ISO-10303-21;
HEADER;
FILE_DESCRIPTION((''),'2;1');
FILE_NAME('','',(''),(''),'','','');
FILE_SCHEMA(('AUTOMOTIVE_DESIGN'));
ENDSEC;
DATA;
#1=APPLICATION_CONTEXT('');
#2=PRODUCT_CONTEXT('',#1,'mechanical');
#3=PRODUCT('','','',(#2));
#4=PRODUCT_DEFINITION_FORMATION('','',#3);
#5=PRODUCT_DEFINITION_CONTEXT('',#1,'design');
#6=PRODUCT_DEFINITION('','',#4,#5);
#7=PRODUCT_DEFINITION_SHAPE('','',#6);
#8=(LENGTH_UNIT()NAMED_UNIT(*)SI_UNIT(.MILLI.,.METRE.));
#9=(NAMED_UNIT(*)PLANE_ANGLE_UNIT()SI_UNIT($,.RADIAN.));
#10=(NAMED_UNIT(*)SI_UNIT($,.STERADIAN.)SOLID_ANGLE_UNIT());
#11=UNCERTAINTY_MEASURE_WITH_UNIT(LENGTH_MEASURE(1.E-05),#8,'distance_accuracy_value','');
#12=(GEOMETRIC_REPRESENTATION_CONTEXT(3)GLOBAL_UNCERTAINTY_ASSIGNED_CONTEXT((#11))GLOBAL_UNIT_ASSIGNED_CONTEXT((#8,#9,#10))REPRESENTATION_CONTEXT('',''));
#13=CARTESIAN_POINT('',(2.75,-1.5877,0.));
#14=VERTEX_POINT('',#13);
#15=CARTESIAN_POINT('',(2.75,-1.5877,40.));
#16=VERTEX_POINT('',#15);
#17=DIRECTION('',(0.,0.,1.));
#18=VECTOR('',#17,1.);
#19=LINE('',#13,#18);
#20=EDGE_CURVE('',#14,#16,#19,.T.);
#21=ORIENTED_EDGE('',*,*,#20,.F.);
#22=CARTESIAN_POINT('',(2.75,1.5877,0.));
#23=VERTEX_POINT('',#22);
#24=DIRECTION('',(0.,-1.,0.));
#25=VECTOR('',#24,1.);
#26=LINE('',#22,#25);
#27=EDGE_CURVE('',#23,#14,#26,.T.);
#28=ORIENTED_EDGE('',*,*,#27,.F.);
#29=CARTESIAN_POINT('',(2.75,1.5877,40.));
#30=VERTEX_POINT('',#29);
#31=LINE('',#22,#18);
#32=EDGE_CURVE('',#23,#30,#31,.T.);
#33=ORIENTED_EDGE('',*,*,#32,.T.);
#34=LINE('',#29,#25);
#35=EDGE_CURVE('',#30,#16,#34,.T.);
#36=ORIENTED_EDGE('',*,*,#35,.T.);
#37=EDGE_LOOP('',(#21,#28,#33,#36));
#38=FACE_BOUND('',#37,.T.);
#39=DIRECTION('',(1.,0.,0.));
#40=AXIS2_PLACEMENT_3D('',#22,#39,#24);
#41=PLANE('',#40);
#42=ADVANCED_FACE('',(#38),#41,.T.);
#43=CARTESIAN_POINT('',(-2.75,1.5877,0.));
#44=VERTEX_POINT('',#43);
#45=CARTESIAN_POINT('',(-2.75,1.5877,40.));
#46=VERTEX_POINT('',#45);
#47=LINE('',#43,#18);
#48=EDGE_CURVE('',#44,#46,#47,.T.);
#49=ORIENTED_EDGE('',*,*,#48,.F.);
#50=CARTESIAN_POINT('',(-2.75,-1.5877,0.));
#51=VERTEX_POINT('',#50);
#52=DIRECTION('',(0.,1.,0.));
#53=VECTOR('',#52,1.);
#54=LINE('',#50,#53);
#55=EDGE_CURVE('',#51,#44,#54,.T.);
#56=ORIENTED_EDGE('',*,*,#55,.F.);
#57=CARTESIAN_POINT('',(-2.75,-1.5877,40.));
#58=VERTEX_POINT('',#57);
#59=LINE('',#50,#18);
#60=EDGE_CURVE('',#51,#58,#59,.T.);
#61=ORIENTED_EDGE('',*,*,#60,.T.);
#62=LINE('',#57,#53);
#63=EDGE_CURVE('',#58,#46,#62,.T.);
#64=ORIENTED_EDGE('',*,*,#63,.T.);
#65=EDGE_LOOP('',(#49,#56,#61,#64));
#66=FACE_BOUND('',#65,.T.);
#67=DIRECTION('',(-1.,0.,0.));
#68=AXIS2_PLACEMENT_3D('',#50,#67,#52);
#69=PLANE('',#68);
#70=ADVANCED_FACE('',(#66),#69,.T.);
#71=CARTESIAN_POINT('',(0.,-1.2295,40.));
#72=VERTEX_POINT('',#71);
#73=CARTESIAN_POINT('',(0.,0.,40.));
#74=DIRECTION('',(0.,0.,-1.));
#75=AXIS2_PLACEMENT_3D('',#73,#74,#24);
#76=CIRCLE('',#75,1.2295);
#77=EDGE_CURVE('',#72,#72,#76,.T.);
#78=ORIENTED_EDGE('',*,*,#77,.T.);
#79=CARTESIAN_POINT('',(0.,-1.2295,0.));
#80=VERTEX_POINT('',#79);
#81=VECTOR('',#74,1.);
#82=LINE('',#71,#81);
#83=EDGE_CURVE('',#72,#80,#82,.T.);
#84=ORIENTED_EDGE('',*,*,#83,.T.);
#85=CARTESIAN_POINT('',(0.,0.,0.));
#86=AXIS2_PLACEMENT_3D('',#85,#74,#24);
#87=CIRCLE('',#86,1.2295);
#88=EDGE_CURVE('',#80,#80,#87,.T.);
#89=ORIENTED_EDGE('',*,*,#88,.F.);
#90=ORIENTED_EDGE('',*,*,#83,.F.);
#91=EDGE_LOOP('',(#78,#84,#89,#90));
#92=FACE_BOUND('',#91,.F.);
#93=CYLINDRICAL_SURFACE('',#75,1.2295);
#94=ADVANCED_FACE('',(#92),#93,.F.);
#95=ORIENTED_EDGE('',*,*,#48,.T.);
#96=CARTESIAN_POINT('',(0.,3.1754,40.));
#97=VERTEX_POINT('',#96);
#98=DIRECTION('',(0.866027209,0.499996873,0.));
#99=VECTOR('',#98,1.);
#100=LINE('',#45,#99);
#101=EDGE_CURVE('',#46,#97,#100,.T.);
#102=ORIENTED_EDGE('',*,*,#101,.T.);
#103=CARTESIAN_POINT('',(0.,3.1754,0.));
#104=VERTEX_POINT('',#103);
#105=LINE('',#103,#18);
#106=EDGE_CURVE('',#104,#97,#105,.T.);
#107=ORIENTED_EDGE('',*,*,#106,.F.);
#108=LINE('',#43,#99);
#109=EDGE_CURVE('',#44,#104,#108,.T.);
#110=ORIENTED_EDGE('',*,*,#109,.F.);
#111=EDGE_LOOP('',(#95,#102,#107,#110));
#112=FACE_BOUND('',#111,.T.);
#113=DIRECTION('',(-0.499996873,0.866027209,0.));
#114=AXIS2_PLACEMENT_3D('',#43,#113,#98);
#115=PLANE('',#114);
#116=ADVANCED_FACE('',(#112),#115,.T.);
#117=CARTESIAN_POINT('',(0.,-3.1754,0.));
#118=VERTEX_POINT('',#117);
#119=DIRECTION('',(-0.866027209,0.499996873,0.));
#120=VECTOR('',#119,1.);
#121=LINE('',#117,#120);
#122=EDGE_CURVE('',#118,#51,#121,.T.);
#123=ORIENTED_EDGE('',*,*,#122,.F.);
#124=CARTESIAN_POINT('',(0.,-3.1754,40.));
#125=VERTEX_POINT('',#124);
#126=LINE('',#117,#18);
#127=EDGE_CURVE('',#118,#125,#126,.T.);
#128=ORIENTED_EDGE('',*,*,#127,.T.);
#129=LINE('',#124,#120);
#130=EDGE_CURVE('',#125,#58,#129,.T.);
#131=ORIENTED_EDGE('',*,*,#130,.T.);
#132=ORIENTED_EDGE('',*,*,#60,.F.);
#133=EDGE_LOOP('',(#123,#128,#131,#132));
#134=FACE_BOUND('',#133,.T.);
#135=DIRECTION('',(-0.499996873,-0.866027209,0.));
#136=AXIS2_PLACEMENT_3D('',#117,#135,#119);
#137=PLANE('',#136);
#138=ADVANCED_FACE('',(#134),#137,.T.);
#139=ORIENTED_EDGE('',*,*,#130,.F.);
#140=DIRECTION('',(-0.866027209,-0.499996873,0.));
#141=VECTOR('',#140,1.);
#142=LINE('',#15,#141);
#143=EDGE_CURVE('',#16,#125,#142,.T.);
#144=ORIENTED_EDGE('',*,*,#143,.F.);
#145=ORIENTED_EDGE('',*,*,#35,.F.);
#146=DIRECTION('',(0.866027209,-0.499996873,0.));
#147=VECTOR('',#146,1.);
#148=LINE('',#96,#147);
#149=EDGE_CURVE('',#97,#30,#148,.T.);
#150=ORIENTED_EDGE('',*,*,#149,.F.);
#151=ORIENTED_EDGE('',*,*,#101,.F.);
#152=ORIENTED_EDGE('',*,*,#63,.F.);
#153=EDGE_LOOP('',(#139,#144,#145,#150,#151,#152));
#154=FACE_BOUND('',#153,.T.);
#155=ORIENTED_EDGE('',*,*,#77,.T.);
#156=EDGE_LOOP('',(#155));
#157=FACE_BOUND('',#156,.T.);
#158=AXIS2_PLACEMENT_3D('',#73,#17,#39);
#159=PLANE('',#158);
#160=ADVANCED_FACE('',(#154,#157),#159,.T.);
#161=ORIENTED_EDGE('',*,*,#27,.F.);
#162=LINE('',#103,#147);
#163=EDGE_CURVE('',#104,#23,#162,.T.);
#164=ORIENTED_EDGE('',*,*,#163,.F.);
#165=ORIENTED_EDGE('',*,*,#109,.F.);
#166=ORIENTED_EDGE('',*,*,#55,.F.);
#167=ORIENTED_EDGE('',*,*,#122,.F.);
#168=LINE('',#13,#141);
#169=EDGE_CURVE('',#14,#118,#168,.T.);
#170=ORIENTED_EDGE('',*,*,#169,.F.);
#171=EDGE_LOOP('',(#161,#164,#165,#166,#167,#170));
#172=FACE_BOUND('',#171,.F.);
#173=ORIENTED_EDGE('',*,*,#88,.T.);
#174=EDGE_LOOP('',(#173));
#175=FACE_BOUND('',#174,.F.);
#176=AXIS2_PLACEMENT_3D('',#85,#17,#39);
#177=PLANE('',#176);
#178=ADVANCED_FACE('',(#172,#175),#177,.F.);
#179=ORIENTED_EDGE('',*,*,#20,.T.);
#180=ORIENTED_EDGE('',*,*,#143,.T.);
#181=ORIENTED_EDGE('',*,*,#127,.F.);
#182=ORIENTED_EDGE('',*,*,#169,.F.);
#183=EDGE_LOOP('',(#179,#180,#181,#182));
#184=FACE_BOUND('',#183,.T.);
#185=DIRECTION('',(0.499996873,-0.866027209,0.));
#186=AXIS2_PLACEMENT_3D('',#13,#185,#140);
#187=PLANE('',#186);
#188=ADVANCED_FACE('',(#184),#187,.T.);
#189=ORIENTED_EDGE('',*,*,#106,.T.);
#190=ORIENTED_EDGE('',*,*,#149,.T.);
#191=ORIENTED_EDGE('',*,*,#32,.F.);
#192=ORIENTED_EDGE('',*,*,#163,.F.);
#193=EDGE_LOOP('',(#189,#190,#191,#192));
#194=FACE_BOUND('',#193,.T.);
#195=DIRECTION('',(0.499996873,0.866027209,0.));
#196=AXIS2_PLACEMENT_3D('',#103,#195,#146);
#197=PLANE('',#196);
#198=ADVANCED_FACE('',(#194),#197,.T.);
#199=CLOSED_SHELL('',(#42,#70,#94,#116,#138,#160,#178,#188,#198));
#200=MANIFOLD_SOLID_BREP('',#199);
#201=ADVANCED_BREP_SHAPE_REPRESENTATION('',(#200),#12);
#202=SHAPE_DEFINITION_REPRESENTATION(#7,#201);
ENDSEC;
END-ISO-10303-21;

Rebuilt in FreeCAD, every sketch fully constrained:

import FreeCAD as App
import Part
import Sketcher
Q = App.Units.Quantity


def add_polygon(sketch, points):
    """Adds a closed chain of lines whose ends are joined by coincident constraints."""
    first, n = sketch.GeometryCount, len(points)
    for a, b in zip(points, points[1:] + points[:1]):
        sketch.addGeometry(Part.LineSegment(App.Vector(*a, 0), App.Vector(*b, 0)), False)
    for i in range(n):
        sketch.addConstraint(Sketcher.Constraint("Coincident", first + i, 2, first + (i + 1) % n, 1))

doc = App.newDocument("Part")
body = doc.addObject("PartDesign::Body", "Body")

# Sketch on XY plane
sketch1 = body.newObject("Sketcher::SketchObject", "Sketch")
sketch1.AttachmentSupport = (doc.getObject("XY_Plane"), [""])
sketch1.MapMode = "FlatFace"
add_polygon(sketch1, [(2.8, 1.6), (0, 3.2), (-2.8, 1.6), (-2.8, -1.6), (0, -3.2), (2.8, -1.6)])  # lines 0-5
sketch1.addConstraint(Sketcher.Constraint("Vertical", 2))
sketch1.addConstraint(Sketcher.Constraint("Vertical", 5))
sketch1.addConstraint(Sketcher.Constraint("Symmetric", 0, 2, 3, 2, -1, 1))
sketch1.addConstraint(Sketcher.Constraint("Symmetric", 1, 2, 4, 2, -1, 1))
sketch1.addConstraint(Sketcher.Constraint("PointOnObject", 0, 2, -2))
sketch1.addConstraint(Sketcher.Constraint("Parallel", 0, 3))
sketch1.addConstraint(Sketcher.Constraint("Horizontal", 2, 2, 4, 2))
sketch1.addConstraint(Sketcher.Constraint("DistanceX", 2, 2, 4, 2, Q("5.5 mm")))
sketch1.addConstraint(Sketcher.Constraint("Angle", 0, Q("150.0002 deg")))
sketch1.addConstraint(Sketcher.Constraint("DistanceY", 2, 2, 2, 1, Q("3.1754 mm")))
pad1 = body.newObject("PartDesign::Pad", "Pad")
pad1.Profile = sketch1
pad1.Length = 40

# Sketch on XY plane
sketch2 = body.newObject("Sketcher::SketchObject", "Sketch001")
sketch2.AttachmentSupport = (doc.getObject("XY_Plane"), [""])
sketch2.MapMode = "FlatFace"
sketch2.AttachmentOffset = App.Placement(App.Vector(0, 0, 40), App.Rotation())
sketch2.addGeometry(Part.Circle(App.Vector(0, 0, 0), App.Vector(0, 0, 1), 1.2), False)
sketch2.addConstraint(Sketcher.Constraint("Coincident", 0, 3, -1, 1))
sketch2.addConstraint(Sketcher.Constraint("Diameter", 0, Q("2.459 mm")))
doc.recompute()
hole = body.newObject("PartDesign::Hole", "Hole")
hole.Profile = sketch2
hole.ThreadType = "None"
hole.Diameter = 2.459
hole.DepthType = "ThroughAll"

doc.recompute()
